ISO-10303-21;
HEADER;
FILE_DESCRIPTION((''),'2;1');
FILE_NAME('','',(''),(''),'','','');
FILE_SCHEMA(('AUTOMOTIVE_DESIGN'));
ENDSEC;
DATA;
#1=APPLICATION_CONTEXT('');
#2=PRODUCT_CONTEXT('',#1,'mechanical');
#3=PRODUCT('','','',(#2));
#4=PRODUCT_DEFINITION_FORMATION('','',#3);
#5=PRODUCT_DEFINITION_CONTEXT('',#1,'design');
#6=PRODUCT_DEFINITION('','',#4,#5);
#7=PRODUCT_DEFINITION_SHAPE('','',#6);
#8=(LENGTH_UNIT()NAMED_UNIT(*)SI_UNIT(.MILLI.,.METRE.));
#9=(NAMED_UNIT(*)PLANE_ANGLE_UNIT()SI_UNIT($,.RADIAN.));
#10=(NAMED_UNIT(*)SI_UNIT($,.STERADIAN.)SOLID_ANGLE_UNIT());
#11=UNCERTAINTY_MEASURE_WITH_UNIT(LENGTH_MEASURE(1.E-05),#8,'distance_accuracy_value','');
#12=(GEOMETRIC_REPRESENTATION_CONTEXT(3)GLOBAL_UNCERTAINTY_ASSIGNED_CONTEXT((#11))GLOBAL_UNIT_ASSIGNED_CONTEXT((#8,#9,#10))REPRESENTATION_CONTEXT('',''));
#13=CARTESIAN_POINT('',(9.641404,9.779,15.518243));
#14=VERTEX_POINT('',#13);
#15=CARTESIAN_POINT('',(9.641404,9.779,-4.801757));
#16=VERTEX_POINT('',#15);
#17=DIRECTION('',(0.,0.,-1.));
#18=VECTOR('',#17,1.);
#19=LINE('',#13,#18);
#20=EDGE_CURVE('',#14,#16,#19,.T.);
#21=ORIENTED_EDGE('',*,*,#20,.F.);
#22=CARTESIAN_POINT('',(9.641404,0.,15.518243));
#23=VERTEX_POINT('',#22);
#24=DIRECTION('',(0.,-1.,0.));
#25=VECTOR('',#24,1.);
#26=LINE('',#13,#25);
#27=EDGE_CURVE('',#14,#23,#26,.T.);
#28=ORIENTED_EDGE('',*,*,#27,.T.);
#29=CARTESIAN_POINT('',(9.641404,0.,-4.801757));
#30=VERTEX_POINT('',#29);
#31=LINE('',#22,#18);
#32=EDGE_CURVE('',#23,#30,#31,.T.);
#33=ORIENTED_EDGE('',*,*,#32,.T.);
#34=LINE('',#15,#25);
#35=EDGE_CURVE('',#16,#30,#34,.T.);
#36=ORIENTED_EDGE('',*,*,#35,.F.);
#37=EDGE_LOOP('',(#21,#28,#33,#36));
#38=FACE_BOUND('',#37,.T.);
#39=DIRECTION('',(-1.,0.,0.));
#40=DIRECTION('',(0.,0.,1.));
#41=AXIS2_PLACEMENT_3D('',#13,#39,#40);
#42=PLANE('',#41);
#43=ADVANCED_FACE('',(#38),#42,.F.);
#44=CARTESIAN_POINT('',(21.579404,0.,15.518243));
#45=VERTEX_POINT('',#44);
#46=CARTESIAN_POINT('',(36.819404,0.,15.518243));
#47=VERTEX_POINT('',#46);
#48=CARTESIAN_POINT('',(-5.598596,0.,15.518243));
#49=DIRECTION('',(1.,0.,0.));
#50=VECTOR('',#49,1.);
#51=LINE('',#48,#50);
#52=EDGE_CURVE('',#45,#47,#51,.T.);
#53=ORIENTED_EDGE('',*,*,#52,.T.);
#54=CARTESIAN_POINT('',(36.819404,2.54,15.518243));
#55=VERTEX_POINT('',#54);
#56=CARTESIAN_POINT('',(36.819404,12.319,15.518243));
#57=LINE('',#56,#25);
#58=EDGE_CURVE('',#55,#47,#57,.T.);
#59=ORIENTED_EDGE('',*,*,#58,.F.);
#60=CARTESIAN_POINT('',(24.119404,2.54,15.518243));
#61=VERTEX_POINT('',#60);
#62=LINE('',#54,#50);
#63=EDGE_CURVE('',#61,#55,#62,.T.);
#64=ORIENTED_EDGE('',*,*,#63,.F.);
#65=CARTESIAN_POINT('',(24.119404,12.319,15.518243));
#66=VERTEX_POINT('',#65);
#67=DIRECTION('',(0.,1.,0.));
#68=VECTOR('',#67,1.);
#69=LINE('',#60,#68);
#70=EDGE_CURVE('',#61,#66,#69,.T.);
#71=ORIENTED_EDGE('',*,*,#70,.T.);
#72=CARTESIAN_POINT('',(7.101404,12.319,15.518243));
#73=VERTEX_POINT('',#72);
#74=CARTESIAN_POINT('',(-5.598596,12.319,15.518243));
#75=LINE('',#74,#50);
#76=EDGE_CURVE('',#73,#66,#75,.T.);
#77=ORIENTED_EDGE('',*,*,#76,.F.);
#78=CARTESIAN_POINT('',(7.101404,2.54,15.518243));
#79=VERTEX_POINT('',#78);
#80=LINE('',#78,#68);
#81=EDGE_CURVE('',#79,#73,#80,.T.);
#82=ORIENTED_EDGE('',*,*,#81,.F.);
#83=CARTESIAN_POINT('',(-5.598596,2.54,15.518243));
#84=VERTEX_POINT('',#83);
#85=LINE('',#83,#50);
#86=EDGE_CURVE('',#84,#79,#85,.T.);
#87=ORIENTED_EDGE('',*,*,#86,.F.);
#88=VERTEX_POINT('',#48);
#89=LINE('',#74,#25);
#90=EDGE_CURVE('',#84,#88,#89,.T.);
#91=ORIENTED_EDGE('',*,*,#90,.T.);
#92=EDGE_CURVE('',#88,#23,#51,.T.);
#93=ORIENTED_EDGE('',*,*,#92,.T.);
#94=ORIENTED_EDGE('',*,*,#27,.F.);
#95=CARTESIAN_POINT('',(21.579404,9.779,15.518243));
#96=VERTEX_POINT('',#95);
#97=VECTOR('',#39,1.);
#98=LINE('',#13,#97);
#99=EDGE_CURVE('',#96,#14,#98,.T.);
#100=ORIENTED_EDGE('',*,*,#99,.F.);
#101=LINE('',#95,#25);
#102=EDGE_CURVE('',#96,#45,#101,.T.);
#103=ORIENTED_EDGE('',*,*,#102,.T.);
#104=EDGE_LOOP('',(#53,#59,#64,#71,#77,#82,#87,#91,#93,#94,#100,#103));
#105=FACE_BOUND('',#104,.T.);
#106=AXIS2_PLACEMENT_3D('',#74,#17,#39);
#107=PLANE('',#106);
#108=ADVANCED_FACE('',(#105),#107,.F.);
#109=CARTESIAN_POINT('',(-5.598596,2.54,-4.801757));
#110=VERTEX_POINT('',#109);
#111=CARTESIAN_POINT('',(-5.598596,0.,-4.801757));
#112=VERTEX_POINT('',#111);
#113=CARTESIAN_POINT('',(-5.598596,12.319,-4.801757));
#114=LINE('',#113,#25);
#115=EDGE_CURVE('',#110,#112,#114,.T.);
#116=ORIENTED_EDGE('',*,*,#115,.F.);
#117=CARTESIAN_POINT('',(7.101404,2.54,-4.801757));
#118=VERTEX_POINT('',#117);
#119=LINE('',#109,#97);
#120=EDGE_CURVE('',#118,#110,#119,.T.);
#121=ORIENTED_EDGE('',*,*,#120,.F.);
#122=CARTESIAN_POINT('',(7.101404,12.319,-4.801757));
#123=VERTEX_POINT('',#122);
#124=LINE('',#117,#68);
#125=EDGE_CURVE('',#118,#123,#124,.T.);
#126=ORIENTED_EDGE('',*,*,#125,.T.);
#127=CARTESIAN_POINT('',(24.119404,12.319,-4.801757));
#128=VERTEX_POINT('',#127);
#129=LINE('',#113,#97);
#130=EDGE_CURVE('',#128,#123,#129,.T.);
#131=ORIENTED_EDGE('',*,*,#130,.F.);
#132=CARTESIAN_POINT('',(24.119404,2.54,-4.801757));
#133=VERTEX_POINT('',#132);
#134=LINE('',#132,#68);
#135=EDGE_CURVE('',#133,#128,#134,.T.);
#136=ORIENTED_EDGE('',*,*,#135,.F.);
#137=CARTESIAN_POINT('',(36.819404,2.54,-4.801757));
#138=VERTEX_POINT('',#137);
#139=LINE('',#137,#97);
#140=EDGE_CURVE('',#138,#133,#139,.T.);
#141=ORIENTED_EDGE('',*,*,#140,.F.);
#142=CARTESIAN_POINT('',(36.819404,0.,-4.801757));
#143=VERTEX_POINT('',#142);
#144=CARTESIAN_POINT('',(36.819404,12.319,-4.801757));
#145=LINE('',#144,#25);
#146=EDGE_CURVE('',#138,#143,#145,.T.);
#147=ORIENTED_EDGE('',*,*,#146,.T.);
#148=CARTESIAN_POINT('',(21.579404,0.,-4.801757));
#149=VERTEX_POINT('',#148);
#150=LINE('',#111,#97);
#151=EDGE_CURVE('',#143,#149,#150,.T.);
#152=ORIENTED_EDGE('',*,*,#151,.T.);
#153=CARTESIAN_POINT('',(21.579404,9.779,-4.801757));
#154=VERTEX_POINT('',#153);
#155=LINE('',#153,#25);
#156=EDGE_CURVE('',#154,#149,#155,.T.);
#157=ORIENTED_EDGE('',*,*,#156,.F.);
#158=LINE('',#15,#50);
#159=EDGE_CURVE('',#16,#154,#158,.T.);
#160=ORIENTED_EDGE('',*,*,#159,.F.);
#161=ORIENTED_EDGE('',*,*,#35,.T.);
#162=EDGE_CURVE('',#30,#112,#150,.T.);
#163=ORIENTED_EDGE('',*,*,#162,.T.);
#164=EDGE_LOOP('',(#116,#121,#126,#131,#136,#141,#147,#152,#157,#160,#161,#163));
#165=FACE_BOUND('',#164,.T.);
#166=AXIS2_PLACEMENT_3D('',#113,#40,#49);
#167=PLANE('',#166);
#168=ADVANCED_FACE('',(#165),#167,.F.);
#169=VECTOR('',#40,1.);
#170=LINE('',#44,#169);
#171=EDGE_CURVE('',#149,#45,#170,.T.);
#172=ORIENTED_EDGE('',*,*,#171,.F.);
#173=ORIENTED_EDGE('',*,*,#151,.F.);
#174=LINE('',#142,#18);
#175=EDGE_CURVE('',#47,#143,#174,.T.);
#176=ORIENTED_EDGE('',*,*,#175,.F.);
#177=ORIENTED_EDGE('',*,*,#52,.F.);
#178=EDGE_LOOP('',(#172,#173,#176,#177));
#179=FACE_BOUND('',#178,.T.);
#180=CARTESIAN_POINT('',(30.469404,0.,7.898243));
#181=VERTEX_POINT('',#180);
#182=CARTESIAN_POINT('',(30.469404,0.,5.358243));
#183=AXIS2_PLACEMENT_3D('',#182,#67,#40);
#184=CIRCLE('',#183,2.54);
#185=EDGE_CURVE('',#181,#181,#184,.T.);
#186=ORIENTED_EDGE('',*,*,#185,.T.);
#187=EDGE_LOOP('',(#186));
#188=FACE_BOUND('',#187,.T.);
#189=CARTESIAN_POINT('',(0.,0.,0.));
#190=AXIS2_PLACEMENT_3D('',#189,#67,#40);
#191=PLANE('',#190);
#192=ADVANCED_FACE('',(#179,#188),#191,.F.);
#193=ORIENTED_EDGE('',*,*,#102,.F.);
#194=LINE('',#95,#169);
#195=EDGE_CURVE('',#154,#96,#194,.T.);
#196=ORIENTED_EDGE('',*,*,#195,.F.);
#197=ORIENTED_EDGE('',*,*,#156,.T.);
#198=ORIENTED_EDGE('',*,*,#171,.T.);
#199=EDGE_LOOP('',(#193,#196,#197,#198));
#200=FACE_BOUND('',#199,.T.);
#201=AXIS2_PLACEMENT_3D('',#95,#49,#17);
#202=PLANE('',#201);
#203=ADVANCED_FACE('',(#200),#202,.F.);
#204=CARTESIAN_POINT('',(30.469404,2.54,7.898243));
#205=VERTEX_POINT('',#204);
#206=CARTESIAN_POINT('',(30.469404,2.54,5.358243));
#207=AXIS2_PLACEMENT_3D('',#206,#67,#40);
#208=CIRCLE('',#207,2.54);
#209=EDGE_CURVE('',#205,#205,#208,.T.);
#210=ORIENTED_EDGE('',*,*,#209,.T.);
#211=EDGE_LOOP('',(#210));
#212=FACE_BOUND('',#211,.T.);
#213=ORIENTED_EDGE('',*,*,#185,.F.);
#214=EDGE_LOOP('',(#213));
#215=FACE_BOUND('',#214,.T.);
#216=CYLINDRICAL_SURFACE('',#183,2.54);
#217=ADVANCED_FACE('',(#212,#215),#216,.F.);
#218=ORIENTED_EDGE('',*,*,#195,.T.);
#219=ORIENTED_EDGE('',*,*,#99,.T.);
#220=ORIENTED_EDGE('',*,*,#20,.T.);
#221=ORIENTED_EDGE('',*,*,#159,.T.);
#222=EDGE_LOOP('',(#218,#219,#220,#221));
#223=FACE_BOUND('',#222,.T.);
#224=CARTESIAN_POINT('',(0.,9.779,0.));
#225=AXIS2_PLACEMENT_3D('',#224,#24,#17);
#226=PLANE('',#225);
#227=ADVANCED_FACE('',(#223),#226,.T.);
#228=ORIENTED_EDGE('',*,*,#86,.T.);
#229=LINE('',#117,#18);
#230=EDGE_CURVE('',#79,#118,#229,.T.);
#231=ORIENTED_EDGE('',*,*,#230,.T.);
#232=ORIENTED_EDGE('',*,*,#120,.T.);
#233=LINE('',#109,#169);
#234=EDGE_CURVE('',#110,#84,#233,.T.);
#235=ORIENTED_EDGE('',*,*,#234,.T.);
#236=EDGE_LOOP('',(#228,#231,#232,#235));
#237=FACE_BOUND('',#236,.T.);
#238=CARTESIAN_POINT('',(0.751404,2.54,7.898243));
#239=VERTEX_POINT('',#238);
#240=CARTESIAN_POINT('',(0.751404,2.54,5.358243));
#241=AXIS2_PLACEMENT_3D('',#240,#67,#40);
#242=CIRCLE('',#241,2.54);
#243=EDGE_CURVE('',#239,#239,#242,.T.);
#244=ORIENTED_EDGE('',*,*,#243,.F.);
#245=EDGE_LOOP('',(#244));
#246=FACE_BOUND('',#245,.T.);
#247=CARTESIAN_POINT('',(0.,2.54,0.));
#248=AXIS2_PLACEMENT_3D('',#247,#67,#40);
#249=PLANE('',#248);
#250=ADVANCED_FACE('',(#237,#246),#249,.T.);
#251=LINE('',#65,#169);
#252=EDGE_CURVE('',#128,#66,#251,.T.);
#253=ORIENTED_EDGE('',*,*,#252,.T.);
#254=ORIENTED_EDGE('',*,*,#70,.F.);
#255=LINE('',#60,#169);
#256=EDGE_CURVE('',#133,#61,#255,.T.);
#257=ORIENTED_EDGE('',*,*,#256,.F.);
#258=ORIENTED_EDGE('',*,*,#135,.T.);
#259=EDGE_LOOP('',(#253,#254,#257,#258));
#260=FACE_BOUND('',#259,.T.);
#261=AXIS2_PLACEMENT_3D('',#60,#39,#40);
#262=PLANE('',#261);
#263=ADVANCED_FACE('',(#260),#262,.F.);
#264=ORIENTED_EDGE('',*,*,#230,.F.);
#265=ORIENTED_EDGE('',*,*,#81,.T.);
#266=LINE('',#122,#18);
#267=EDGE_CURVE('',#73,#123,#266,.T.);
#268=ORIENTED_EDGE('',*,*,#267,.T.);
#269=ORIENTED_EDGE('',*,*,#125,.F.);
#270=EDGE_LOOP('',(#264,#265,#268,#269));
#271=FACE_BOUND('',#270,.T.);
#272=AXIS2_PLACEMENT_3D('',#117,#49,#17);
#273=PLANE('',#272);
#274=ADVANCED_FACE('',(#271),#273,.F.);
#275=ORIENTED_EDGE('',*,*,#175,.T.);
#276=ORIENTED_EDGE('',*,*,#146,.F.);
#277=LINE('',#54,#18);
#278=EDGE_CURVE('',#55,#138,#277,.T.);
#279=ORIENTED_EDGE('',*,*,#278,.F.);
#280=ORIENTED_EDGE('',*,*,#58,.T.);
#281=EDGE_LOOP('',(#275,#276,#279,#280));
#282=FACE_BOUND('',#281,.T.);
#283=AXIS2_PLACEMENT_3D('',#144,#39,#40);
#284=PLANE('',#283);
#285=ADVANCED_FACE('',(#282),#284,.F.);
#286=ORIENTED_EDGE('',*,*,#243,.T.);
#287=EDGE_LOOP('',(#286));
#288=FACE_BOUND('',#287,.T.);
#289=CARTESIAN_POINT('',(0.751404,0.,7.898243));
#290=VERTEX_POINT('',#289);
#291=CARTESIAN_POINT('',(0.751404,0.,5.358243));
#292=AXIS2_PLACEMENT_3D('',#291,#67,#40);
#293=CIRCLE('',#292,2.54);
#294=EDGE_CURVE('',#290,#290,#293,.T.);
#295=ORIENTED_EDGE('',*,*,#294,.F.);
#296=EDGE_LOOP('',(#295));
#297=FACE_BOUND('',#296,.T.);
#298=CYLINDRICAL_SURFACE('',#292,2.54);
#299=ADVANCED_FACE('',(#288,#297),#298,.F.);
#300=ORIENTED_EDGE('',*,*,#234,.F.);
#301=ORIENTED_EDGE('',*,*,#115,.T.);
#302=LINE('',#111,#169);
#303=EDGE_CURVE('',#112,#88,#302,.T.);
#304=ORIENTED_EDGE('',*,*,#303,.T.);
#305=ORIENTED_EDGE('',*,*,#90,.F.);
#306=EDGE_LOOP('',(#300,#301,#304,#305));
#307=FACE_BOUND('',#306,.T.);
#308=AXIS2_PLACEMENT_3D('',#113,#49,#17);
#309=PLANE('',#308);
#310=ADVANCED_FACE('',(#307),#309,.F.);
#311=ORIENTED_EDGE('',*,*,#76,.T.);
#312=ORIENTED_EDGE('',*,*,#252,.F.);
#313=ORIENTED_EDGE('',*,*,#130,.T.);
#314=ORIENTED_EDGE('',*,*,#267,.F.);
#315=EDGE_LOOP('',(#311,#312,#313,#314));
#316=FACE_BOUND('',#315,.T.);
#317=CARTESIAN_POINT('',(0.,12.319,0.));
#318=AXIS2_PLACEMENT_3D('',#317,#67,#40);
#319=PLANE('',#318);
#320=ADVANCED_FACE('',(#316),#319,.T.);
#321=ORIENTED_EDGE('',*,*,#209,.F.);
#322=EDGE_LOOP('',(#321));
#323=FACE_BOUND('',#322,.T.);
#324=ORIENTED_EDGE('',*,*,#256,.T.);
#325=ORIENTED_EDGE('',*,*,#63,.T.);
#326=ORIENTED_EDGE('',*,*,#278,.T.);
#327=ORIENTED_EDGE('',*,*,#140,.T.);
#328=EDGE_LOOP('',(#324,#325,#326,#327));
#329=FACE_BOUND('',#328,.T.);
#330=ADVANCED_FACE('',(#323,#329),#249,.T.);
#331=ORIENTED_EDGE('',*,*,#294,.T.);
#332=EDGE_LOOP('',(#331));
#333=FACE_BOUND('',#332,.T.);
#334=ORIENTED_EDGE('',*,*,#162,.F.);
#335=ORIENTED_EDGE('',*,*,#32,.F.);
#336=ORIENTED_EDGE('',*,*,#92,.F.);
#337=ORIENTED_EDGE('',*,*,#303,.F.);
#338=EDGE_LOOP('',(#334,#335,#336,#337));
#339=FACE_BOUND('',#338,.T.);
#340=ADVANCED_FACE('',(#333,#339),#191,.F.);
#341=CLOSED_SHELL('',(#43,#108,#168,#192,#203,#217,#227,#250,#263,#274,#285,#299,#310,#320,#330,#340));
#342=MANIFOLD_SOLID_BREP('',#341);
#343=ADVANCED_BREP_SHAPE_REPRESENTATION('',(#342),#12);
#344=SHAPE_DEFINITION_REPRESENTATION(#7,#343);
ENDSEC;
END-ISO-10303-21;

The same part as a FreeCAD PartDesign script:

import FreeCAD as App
import Part
import Sketcher
from FreeCAD import Vector
Q = App.Units.Quantity

doc = App.newDocument("Part")
params = doc.addObject("Spreadsheet::Sheet", "Params")
for row, (alias, value) in enumerate([
    ("sketch1_height", "0.8 in"),
    ("sketch1_width", "1.67 in"),
    ("pad1_length", "0.485 in"),
    ("sketch2_width", "0.5 in"),
    ("sketch2_height", "0.8 in"),
    ("pocket1_length", "0.385 in"),
    ("sketch3_width", "0.5 in"),
    ("sketch3_height", "0.8 in"),
    ("pocket2_length", "0.385 in"),
    ("sketch4_height", "0.8 in"),
    ("sketch4_width", "0.47 in"),
    ("pocket3_length", "0.385 in"),
    ("sketch5_diameter", "0.2 in"),
    ("pocket4_length", "0.1 in"),
    ("sketch6_diameter", "0.2 in"),
    ("pocket5_length", "0.1 in"),
], start=1):
    params.set(f"A{row}", alias)
    params.set(f"B{row}", "=" + value)
    params.setAlias(f"B{row}", alias)

body = doc.addObject("PartDesign::Body", "Body")

sketch1 = doc.addObject("Sketcher::SketchObject", "Sketch")
body.addObject(sketch1)
sketch1.AttachmentSupport = (doc.XZ_Plane, [""])
sketch1.MapMode = "FlatFace"
sketch1.addGeometry(Part.LineSegment(Vector(-6, -5, 0), Vector(-6, 16, 0)), False)
sketch1.addGeometry(Part.LineSegment(Vector(-6, 16, 0), Vector(37, 16, 0)), False)
sketch1.addGeometry(Part.LineSegment(Vector(37, 16, 0), Vector(37, -5, 0)), False)
sketch1.addGeometry(Part.LineSegment(Vector(37, -5, 0), Vector(-6, -5, 0)), False)
sketch1.addConstraint(Sketcher.Constraint("Coincident", 0, 2, 1, 1))
sketch1.addConstraint(Sketcher.Constraint("Coincident", 1, 2, 2, 1))
sketch1.addConstraint(Sketcher.Constraint("Coincident", 2, 2, 3, 1))
sketch1.addConstraint(Sketcher.Constraint("Coincident", 3, 2, 0, 1))
sketch1.addConstraint(Sketcher.Constraint("Vertical", 0))
sketch1.addConstraint(Sketcher.Constraint("Horizontal", 1))
sketch1.addConstraint(Sketcher.Constraint("Vertical", 2))
sketch1.addConstraint(Sketcher.Constraint("Horizontal", 3))
sketch1.addConstraint(Sketcher.Constraint("DistanceY", 0, 1, 0, 2, Q("0.8 in")))
sketch1.addConstraint(Sketcher.Constraint("DistanceX", 1, 1, 1, 2, Q("1.67 in")))
sketch1.addConstraint(Sketcher.Constraint("DistanceX", 0, 2, -1, 1, Q("5.598596 mm")))
sketch1.addConstraint(Sketcher.Constraint("DistanceY", -1, 1, 0, 2, Q("15.518243 mm")))
sketch1.setExpression("Constraints[8]", "Params.sketch1_height")
sketch1.setExpression("Constraints[9]", "Params.sketch1_width")
pad1 = doc.addObject("PartDesign::Pad", "Pad")
body.addObject(pad1)
pad1.Profile = sketch1
pad1.setExpression("Length", "Params.pad1_length")
pad1.Reversed = True

sketch2 = doc.addObject("Sketcher::SketchObject", "Sketch001")
body.addObject(sketch2)
sketch2.AttachmentSupport = (doc.XZ_Plane, [""])
sketch2.MapMode = "FlatFace"
sketch2.AttachmentOffset = App.Placement(Vector(0, 0, -0.485 * 25.4), App.Rotation())
sketch2.addGeometry(Part.LineSegment(Vector(-6, -5, 0), Vector(-6, 16, 0)), False)
sketch2.addGeometry(Part.LineSegment(Vector(-6, 16, 0), Vector(7, 16, 0)), False)
sketch2.addGeometry(Part.LineSegment(Vector(7, 16, 0), Vector(7, -5, 0)), False)
sketch2.addGeometry(Part.LineSegment(Vector(7, -5, 0), Vector(-6, -5, 0)), False)
sketch2.addConstraint(Sketcher.Constraint("Coincident", 0, 2, 1, 1))
sketch2.addConstraint(Sketcher.Constraint("Coincident", 1, 2, 2, 1))
sketch2.addConstraint(Sketcher.Constraint("Coincident", 2, 2, 3, 1))
sketch2.addConstraint(Sketcher.Constraint("Coincident", 3, 2, 0, 1))
sketch2.addConstraint(Sketcher.Constraint("Vertical", 0))
sketch2.addConstraint(Sketcher.Constraint("Horizontal", 1))
sketch2.addConstraint(Sketcher.Constraint("Vertical", 2))
sketch2.addConstraint(Sketcher.Constraint("Horizontal", 3))
sketch2.addConstraint(Sketcher.Constraint("DistanceX", 1, 1, 1, 2, Q("0.5 in")))
sketch2.addConstraint(Sketcher.Constraint("DistanceY", 0, 1, 0, 2, Q("0.8 in")))
sketch2.addConstraint(Sketcher.Constraint("DistanceX", 0, 2, -1, 1, Q("5.598596 mm")))
sketch2.addConstraint(Sketcher.Constraint("DistanceY", -1, 1, 0, 2, Q("15.518243 mm")))
sketch2.setExpression("Constraints[8]", "Params.sketch2_width")
sketch2.setExpression("Constraints[9]", "Params.sketch2_height")
pocket1 = doc.addObject("PartDesign::Pocket", "Pocket")
body.addObject(pocket1)
pocket1.Profile = sketch2
pocket1.setExpression("Length", "Params.pocket1_length")
pocket1.Reversed = True

sketch3 = doc.addObject("Sketcher::SketchObject", "Sketch002")
body.addObject(sketch3)
sketch3.AttachmentSupport = (doc.XZ_Plane, [""])
sketch3.MapMode = "FlatFace"
sketch3.AttachmentOffset = App.Placement(Vector(0, 0, -0.485 * 25.4), App.Rotation())
sketch3.addGeometry(Part.LineSegment(Vector(24, -5, 0), Vector(24, 16, 0)), False)
sketch3.addGeometry(Part.LineSegment(Vector(24, 16, 0), Vector(37, 16, 0)), False)
sketch3.addGeometry(Part.LineSegment(Vector(37, 16, 0), Vector(37, -5, 0)), False)
sketch3.addGeometry(Part.LineSegment(Vector(37, -5, 0), Vector(24, -5, 0)), False)
sketch3.addConstraint(Sketcher.Constraint("Coincident", 0, 2, 1, 1))
sketch3.addConstraint(Sketcher.Constraint("Coincident", 1, 2, 2, 1))
sketch3.addConstraint(Sketcher.Constraint("Coincident", 2, 2, 3, 1))
sketch3.addConstraint(Sketcher.Constraint("Coincident", 3, 2, 0, 1))
sketch3.addConstraint(Sketcher.Constraint("Vertical", 0))
sketch3.addConstraint(Sketcher.Constraint("Horizontal", 1))
sketch3.addConstraint(Sketcher.Constraint("Vertical", 2))
sketch3.addConstraint(Sketcher.Constraint("Horizontal", 3))
sketch3.addConstraint(Sketcher.Constraint("DistanceX", 1, 1, 1, 2, Q("0.5 in")))
sketch3.addConstraint(Sketcher.Constraint("DistanceY", 0, 1, 0, 2, Q("0.8 in")))
sketch3.addConstraint(Sketcher.Constraint("DistanceX", -1, 1, 0, 2, Q("24.119404 mm")))
sketch3.addConstraint(Sketcher.Constraint("DistanceY", -1, 1, 0, 2, Q("15.518243 mm")))
sketch3.setExpression("Constraints[8]", "Params.sketch3_width")
sketch3.setExpression("Constraints[9]", "Params.sketch3_height")
pocket2 = doc.addObject("PartDesign::Pocket", "Pocket001")
body.addObject(pocket2)
pocket2.Profile = sketch3
pocket2.setExpression("Length", "Params.pocket2_length")
pocket2.Reversed = True

sketch4 = doc.addObject("Sketcher::SketchObject", "Sketch003")
body.addObject(sketch4)
sketch4.AttachmentSupport = (doc.XZ_Plane, [""])
sketch4.MapMode = "FlatFace"
sketch4.addGeometry(Part.LineSegment(Vector(22, -5, 0), Vector(22, 16, 0)), False)
sketch4.addGeometry(Part.LineSegment(Vector(22, 16, 0), Vector(10, 16, 0)), False)
sketch4.addGeometry(Part.LineSegment(Vector(10, 16, 0), Vector(10, -5, 0)), False)
sketch4.addGeometry(Part.LineSegment(Vector(10, -5, 0), Vector(22, -5, 0)), False)
sketch4.addConstraint(Sketcher.Constraint("Coincident", 0, 2, 1, 1))
sketch4.addConstraint(Sketcher.Constraint("Coincident", 1, 2, 2, 1))
sketch4.addConstraint(Sketcher.Constraint("Coincident", 2, 2, 3, 1))
sketch4.addConstraint(Sketcher.Constraint("Coincident", 3, 2, 0, 1))
sketch4.addConstraint(Sketcher.Constraint("Vertical", 0))
sketch4.addConstraint(Sketcher.Constraint("Horizontal", 1))
sketch4.addConstraint(Sketcher.Constraint("Vertical", 2))
sketch4.addConstraint(Sketcher.Constraint("Horizontal", 3))
sketch4.addConstraint(Sketcher.Constraint("DistanceY", 0, 1, 0, 2, Q("0.8 in")))
sketch4.addConstraint(Sketcher.Constraint("DistanceX", 1, 2, 1, 1, Q("0.47 in")))
sketch4.addConstraint(Sketcher.Constraint("DistanceX", -1, 1, 0, 2, Q("21.579404 mm")))
sketch4.addConstraint(Sketcher.Constraint("DistanceY", -1, 1, 0, 2, Q("15.518243 mm")))
sketch4.setExpression("Constraints[8]", "Params.sketch4_height")
sketch4.setExpression("Constraints[9]", "Params.sketch4_width")
pocket3 = doc.addObject("PartDesign::Pocket", "Pocket002")
body.addObject(pocket3)
pocket3.Profile = sketch4
pocket3.setExpression("Length", "Params.pocket3_length")

sketch5 = doc.addObject("Sketcher::SketchObject", "Sketch004")
body.addObject(sketch5)
sketch5.AttachmentSupport = (doc.XZ_Plane, [""])
sketch5.MapMode = "FlatFace"
sketch5.AttachmentOffset = App.Placement(Vector(0, 0, -0.1 * 25.4), App.Rotation())
sketch5.addGeometry(Part.Circle(Vector(0.8, 5.4, 0), Vector(0, 0, 1), 2.5), False)
sketch5.addConstraint(Sketcher.Constraint("Diameter", 0, Q("0.2 in")))
sketch5.addConstraint(Sketcher.Constraint("DistanceX", -1, 1, 0, 3, Q("0.751404 mm")))
sketch5.addConstraint(Sketcher.Constraint("DistanceY", -1, 1, 0, 3, Q("5.358243 mm")))
sketch5.setExpression("Constraints[0]", "Params.sketch5_diameter")
pocket4 = doc.addObject("PartDesign::Pocket", "Pocket003")
body.addObject(pocket4)
pocket4.Profile = sketch5
pocket4.setExpression("Length", "Params.pocket4_length")
pocket4.Reversed = True

sketch6 = doc.addObject("Sketcher::SketchObject", "Sketch005")
body.addObject(sketch6)
sketch6.AttachmentSupport = (doc.XZ_Plane, [""])
sketch6.MapMode = "FlatFace"
sketch6.AttachmentOffset = App.Placement(Vector(0, 0, -0.1 * 25.4), App.Rotation())
sketch6.addGeometry(Part.Circle(Vector(30.5, 5.4, 0), Vector(0, 0, 1), 2.5), False)
sketch6.addConstraint(Sketcher.Constraint("Diameter", 0, Q("0.2 in")))
sketch6.addConstraint(Sketcher.Constraint("DistanceX", -1, 1, 0, 3, Q("30.469404 mm")))
sketch6.addConstraint(Sketcher.Constraint("DistanceY", -1, 1, 0, 3, Q("5.358243 mm")))
sketch6.setExpression("Constraints[0]", "Params.sketch6_diameter")
pocket5 = doc.addObject("PartDesign::Pocket", "Pocket004")
body.addObject(pocket5)
pocket5.Profile = sketch6
pocket5.setExpression("Length", "Params.pocket5_length")
pocket5.Reversed = True

doc.recompute()
